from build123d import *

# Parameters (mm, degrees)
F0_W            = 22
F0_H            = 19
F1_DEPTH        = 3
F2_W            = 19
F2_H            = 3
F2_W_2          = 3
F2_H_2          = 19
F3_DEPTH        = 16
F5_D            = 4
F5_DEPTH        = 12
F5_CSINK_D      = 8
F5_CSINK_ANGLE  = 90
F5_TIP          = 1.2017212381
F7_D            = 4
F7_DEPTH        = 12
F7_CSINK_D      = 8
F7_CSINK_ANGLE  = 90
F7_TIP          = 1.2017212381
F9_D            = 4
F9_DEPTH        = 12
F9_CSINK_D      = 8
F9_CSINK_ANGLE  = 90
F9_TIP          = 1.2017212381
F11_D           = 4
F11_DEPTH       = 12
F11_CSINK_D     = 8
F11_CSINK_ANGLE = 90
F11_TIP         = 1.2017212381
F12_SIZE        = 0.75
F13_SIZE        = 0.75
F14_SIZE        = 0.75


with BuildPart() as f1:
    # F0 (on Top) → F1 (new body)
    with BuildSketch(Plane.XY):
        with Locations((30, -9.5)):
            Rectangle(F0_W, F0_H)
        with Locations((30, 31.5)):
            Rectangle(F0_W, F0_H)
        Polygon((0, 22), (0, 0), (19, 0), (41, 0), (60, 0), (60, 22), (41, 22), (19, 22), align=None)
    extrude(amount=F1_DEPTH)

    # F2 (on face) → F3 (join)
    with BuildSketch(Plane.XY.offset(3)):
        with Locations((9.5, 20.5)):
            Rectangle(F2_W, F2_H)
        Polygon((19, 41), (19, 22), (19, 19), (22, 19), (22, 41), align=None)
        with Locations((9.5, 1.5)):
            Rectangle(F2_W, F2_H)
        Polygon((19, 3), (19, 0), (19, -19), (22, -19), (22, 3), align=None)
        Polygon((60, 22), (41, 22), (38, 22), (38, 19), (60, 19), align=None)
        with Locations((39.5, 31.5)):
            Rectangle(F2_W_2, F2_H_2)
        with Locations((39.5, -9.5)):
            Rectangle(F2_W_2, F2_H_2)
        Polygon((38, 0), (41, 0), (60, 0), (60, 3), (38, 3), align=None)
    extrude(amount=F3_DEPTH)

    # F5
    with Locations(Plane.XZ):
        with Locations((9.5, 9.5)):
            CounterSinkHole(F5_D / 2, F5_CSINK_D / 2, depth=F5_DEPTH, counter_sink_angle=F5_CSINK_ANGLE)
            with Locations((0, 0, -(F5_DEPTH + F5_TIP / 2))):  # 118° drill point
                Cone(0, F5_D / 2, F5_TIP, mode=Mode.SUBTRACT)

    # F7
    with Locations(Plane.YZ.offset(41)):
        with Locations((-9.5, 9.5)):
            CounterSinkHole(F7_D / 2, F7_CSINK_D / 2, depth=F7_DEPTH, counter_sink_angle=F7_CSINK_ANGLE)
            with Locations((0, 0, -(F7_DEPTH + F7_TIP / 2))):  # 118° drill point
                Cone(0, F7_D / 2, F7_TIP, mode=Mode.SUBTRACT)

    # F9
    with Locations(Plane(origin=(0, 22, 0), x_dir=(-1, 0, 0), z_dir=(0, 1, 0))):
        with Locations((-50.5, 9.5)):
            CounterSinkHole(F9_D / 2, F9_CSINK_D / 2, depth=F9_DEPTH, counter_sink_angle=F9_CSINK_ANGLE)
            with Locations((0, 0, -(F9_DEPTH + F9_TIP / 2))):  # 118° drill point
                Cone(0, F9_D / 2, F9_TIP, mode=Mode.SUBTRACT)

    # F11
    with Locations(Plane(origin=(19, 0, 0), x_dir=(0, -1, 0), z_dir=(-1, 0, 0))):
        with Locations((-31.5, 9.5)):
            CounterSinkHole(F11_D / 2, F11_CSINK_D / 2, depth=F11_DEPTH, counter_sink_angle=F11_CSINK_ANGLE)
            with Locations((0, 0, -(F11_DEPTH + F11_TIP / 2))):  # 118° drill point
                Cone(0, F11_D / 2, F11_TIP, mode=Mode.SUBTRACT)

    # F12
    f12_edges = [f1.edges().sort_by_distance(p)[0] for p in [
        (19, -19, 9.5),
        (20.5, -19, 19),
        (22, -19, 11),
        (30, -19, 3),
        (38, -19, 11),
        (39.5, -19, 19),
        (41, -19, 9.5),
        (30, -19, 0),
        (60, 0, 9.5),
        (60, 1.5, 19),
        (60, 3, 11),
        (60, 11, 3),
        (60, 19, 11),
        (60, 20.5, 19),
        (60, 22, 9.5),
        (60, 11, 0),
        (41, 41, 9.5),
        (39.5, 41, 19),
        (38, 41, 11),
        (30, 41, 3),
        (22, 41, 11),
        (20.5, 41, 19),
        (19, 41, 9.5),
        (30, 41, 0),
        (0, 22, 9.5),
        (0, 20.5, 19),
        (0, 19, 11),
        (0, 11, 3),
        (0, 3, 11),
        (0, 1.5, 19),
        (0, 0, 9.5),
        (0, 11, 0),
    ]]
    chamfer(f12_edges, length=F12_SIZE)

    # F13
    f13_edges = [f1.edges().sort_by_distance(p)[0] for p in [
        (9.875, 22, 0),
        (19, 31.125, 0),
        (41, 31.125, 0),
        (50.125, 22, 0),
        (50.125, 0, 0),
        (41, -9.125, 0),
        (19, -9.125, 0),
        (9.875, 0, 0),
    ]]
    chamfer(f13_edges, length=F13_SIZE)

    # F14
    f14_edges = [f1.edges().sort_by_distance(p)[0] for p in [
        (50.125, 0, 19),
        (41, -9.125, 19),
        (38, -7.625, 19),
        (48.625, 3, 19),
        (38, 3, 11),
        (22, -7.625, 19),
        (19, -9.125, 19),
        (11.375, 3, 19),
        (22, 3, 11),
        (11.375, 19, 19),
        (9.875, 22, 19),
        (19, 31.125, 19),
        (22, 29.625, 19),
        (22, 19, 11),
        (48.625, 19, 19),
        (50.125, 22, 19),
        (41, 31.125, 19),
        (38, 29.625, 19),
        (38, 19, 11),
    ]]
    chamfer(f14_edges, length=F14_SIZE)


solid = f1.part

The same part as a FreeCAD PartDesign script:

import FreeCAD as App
import Part
import Sketcher

V = App.Vector


def edges_at(feature, points):
    """Names of the edges that pass closest to the given points."""
    edges = feature.Shape.Edges
    near = lambda p: min(range(len(edges)), key=lambda i: edges[i].distToShape(Part.Vertex(*p))[0])
    return sorted({f"Edge{near(p) + 1}" for p in points})


def add_polygon(sketch, points):
    """Adds a closed chain of lines whose ends are joined by coincident constraints."""
    first, n = sketch.GeometryCount, len(points)
    for a, b in zip(points, points[1:] + points[:1]):
        sketch.addGeometry(Part.LineSegment(App.Vector(*a, 0), App.Vector(*b, 0)), False)
    for i in range(n):
        sketch.addConstraint(Sketcher.Constraint("Coincident", first + i, 2, first + (i + 1) % n, 1))

doc = App.newDocument("Part")
body = doc.addObject("PartDesign::Body", "Body")

# Sketch on XY plane
sketch1 = body.newObject("Sketcher::SketchObject", "Sketch")
sketch1.AttachmentSupport = (doc.getObject("XY_Plane"), [""])
sketch1.MapMode = "FlatFace"
add_polygon(sketch1, [(19, 0), (19, -19), (41, -19), (41, 0), (60, 0), (60, 22), (41, 22), (41, 41), (19, 41), (19, 22), (0, 22), (0, 0)])  # lines 0-11
sketch1.addConstraint([
    Sketcher.Constraint("Vertical", 0),
    Sketcher.Constraint("Horizontal", 1),
    Sketcher.Constraint("Vertical", 2),
    Sketcher.Constraint("Horizontal", 3),
    Sketcher.Constraint("Vertical", 4),
    Sketcher.Constraint("Horizontal", 5),
    Sketcher.Constraint("Vertical", 6),
    Sketcher.Constraint("Horizontal", 7),
    Sketcher.Constraint("Vertical", 8),
    Sketcher.Constraint("Horizontal", 9),
    Sketcher.Constraint("Vertical", 10),
    Sketcher.Constraint("Horizontal", 11),
    Sketcher.Constraint("Coincident", 10, 2, -1, 1),
    Sketcher.Constraint("PointOnObject", 2, 2, -1),
    Sketcher.Constraint("Horizontal", 5, 2, 8, 2),
    Sketcher.Constraint("Vertical", 2, 2, 5, 2),
    Sketcher.Constraint("Vertical", 0, 2, 7, 2),
    Sketcher.Constraint("Equal", 5, 9),
    Sketcher.Constraint("Equal", 11, 0),
    Sketcher.Constraint("Equal", 7, 4),
    Sketcher.Constraint("Equal", 2, 6),
    Sketcher.Constraint("DistanceX", 1, 1, 1, 2, 22.0),
    Sketcher.Constraint("DistanceX", 3, 1, 3, 2, 19.0),
])
pad1 = body.newObject("PartDesign::Pad", "Pad")
pad1.Profile = sketch1
pad1.Length = 3

# Sketch on XY plane
sketch2 = body.newObject("Sketcher::SketchObject", "Sketch001")
sketch2.AttachmentSupport = (doc.getObject("XY_Plane"), [""])
sketch2.MapMode = "FlatFace"
sketch2.AttachmentOffset = App.Placement(V(0, 0, 3), App.Rotation())
add_polygon(sketch2, [(0, 22), (0, 19), (22, 19), (22, 41), (19, 41), (19, 22)])  # lines 0-5
add_polygon(sketch2, [(0, 3), (0, 0), (19, 0), (19, -19), (22, -19), (22, 3)])  # lines 6-11
add_polygon(sketch2, [(60, 22), (41, 22), (41, 41), (38, 41), (38, 19), (60, 19)])  # lines 12-17
add_polygon(sketch2, [(38, -19), (41, -19), (41, 0), (60, 0), (60, 3), (38, 3)])  # lines 18-23
sketch2.addConstraint([
    Sketcher.Constraint("Vertical", 0),
    Sketcher.Constraint("Horizontal", 1),
    Sketcher.Constraint("Vertical", 2),
    Sketcher.Constraint("Horizontal", 3),
    Sketcher.Constraint("Vertical", 4),
    Sketcher.Constraint("Horizontal", 5),
    Sketcher.Constraint("Vertical", 6),
    Sketcher.Constraint("Horizontal", 7),
    Sketcher.Constraint("Vertical", 8),
    Sketcher.Constraint("Horizontal", 9),
    Sketcher.Constraint("Vertical", 10),
    Sketcher.Constraint("Horizontal", 11),
    Sketcher.Constraint("Horizontal", 12),
    Sketcher.Constraint("Vertical", 13),
    Sketcher.Constraint("Horizontal", 14),
    Sketcher.Constraint("Vertical", 15),
    Sketcher.Constraint("Horizontal", 16),
    Sketcher.Constraint("Vertical", 17),
    Sketcher.Constraint("Horizontal", 18),
    Sketcher.Constraint("Vertical", 19),
    Sketcher.Constraint("Horizontal", 20),
    Sketcher.Constraint("Vertical", 21),
    Sketcher.Constraint("Horizontal", 22),
    Sketcher.Constraint("Vertical", 23),
    Sketcher.Constraint("Coincident", 6, 2, -1, 1),
    Sketcher.Constraint("Symmetric", 1, 2, 9, 2, -1),
    Sketcher.Constraint("Symmetric", 15, 2, 23, 2, -1),
    Sketcher.Constraint("PointOnObject", 0, 2, -2),
    Sketcher.Constraint("PointOnObject", 19, 2, -1),
    Sketcher.Constraint("Horizontal", 5, 2, 12, 2),
    Sketcher.Constraint("Horizontal", 3, 2, 13, 2),
    Sketcher.Constraint("Horizontal", 1, 2, 15, 2),
    Sketcher.Constraint("Horizontal", 11, 2, 21, 2),
    Sketcher.Constraint("Vertical", 4, 2, 7, 2),
    Sketcher.Constraint("Vertical", 13, 2, 18, 2),
    Sketcher.Constraint("Vertical", 17, 2, 20, 2),
    Sketcher.Constraint("Equal", 7, 12),
    Sketcher.Constraint("Equal", 9, 14),
    Sketcher.Constraint("Equal", 18, 0),
    Sketcher.Constraint("Equal", 22, 2),
    Sketcher.Constraint("Equal", 0, 6),
    Sketcher.Constraint("Equal", 4, 8),
    Sketcher.Constraint("DistanceX", 1, 1, 1, 2, 22.0),
    Sketcher.Constraint("DistanceX", 3, 2, 3, 1, 3.0),
    Sketcher.Constraint("DistanceX", -1, 1, 12, 2, 41.0),
])
pad2 = body.newObject("PartDesign::Pad", "Pad001")
pad2.Profile = sketch2
pad2.Length = 16

# Sketch on XZ plane
sketch3 = body.newObject("Sketcher::SketchObject", "Sketch002")
sketch3.AttachmentSupport = (doc.getObject("XZ_Plane"), [""])
sketch3.MapMode = "FlatFace"
sketch3.addGeometry(Part.Circle(V(9.5, 9.5, 0), V(0, 0, 1), 2), False)
sketch3.addConstraint([
    Sketcher.Constraint("Diameter", 0, 4.0),
    Sketcher.Constraint("DistanceX", -1, 1, 0, 3, 9.5),
    Sketcher.Constraint("DistanceY", -1, 1, 0, 3, 9.5),
])
doc.recompute()
hole = body.newObject("PartDesign::Hole", "Hole")
hole.Profile = sketch3
hole.ThreadType = "None"
hole.Diameter = 4
hole.DepthType = "Dimension"
hole.Depth = 12
hole.DrillPoint = "Angled"
hole.DrillPointAngle = 118
hole.HoleCutType = "Countersink"
hole.HoleCutDiameter = 8
hole.HoleCutCountersinkAngle = 90

# Sketch on YZ plane
sketch4 = body.newObject("Sketcher::SketchObject", "Sketch003")
sketch4.AttachmentSupport = (doc.getObject("YZ_Plane"), [""])
sketch4.MapMode = "FlatFace"
sketch4.AttachmentOffset = App.Placement(V(0, 0, 41), App.Rotation())
sketch4.addGeometry(Part.Circle(V(-9.5, 9.5, 0), V(0, 0, 1), 2), False)
sketch4.addConstraint([
    Sketcher.Constraint("Diameter", 0, 4.0),
    Sketcher.Constraint("DistanceX", 0, 3, -1, 1, 9.5),
    Sketcher.Constraint("DistanceY", -1, 1, 0, 3, 9.5),
])
doc.recompute()
hole2 = body.newObject("PartDesign::Hole", "Hole001")
hole2.Profile = sketch4
hole2.ThreadType = "None"
hole2.Diameter = 4
hole2.DepthType = "Dimension"
hole2.Depth = 12
hole2.DrillPoint = "Angled"
hole2.DrillPointAngle = 118
hole2.HoleCutType = "Countersink"
hole2.HoleCutDiameter = 8
hole2.HoleCutCountersinkAngle = 90

# Sketch on XZ plane
sketch5 = body.newObject("Sketcher::SketchObject", "Sketch004")
sketch5.AttachmentSupport = (doc.getObject("XZ_Plane"), [""])
sketch5.MapMode = "FlatFace"
sketch5.AttachmentOffset = App.Placement(V(0, 0, -22), App.Rotation())
sketch5.addGeometry(Part.Circle(V(50.5, 9.5, 0), V(0, 0, 1), 2), False)
sketch5.addConstraint([
    Sketcher.Constraint("Diameter", 0, 4.0),
    Sketcher.Constraint("DistanceX", -1, 1, 0, 3, 50.5),
    Sketcher.Constraint("DistanceY", -1, 1, 0, 3, 9.5),
])
doc.recompute()
hole3 = body.newObject("PartDesign::Hole", "Hole002")
hole3.Profile = sketch5
hole3.ThreadType = "None"
hole3.Diameter = 4
hole3.DepthType = "Dimension"
hole3.Depth = 12
hole3.DrillPoint = "Angled"
hole3.DrillPointAngle = 118
hole3.HoleCutType = "Countersink"
hole3.HoleCutDiameter = 8
hole3.HoleCutCountersinkAngle = 90
hole3.Reversed = True

# Sketch on YZ plane
sketch6 = body.newObject("Sketcher::SketchObject", "Sketch005")
sketch6.AttachmentSupport = (doc.getObject("YZ_Plane"), [""])
sketch6.MapMode = "FlatFace"
sketch6.AttachmentOffset = App.Placement(V(0, 0, 19), App.Rotation())
sketch6.addGeometry(Part.Circle(V(31.5, 9.5, 0), V(0, 0, 1), 2), False)
sketch6.addConstraint([
    Sketcher.Constraint("Diameter", 0, 4.0),
    Sketcher.Constraint("DistanceX", -1, 1, 0, 3, 31.5),
    Sketcher.Constraint("DistanceY", -1, 1, 0, 3, 9.5),
])
doc.recompute()
hole4 = body.newObject("PartDesign::Hole", "Hole003")
hole4.Profile = sketch6
hole4.ThreadType = "None"
hole4.Diameter = 4
hole4.DepthType = "Dimension"
hole4.Depth = 12
hole4.DrillPoint = "Angled"
hole4.DrillPointAngle = 118
hole4.HoleCutType = "Countersink"
hole4.HoleCutDiameter = 8
hole4.HoleCutCountersinkAngle = 90
hole4.Reversed = True
doc.recompute()

chamfer = body.newObject("PartDesign::Chamfer", "Chamfer")
chamfer.Base = (hole4, edges_at(hole4, [
    (19, -19, 9.5),
    (20.5, -19, 19),
    (22, -19, 11),
    (30, -19, 3),
    (38, -19, 11),
    (39.5, -19, 19),
    (41, -19, 9.5),
    (30, -19, 0),
    (60, 0, 9.5),
    (60, 1.5, 19),
    (60, 3, 11),
    (60, 11, 3),
    (60, 19, 11),
    (60, 20.5, 19),
    (60, 22, 9.5),
    (60, 11, 0),
    (41, 41, 9.5),
    (39.5, 41, 19),
    (38, 41, 11),
    (30, 41, 3),
    (22, 41, 11),
    (20.5, 41, 19),
    (19, 41, 9.5),
    (30, 41, 0),
    (0, 22, 9.5),
    (0, 20.5, 19),
    (0, 19, 11),
    (0, 11, 3),
    (0, 3, 11),
    (0, 1.5, 19),
    (0, 0, 9.5),
    (0, 11, 0),
]))
chamfer.Size = 0.75
doc.recompute()

chamfer2 = body.newObject("PartDesign::Chamfer", "Chamfer001")
chamfer2.Base = (chamfer, edges_at(chamfer, [
    (9.875, 22, 0),
    (19, 31.125, 0),
    (41, 31.125, 0),
    (50.125, 22, 0),
    (50.125, 0, 0),
    (41, -9.125, 0),
    (19, -9.125, 0),
    (9.875, 0, 0),
]))
chamfer2.Size = 0.75
doc.recompute()

chamfer3 = body.newObject("PartDesign::Chamfer", "Chamfer002")
chamfer3.Base = (chamfer2, edges_at(chamfer2, [
    (50.125, 0, 19),
    (41, -9.125, 19),
    (38, -7.625, 19),
    (48.625, 3, 19),
    (38, 3, 11),
    (22, -7.625, 19),
    (19, -9.125, 19),
    (11.375, 3, 19),
    (22, 3, 11),
    (11.375, 19, 19),
    (9.875, 22, 19),
    (19, 31.125, 19),
    (22, 29.625, 19),
    (22, 19, 11),
    (48.625, 19, 19),
    (50.125, 22, 19),
    (41, 31.125, 19),
    (38, 29.625, 19),
    (38, 19, 11),
]))
chamfer3.Size = 0.75

doc.recompute()
